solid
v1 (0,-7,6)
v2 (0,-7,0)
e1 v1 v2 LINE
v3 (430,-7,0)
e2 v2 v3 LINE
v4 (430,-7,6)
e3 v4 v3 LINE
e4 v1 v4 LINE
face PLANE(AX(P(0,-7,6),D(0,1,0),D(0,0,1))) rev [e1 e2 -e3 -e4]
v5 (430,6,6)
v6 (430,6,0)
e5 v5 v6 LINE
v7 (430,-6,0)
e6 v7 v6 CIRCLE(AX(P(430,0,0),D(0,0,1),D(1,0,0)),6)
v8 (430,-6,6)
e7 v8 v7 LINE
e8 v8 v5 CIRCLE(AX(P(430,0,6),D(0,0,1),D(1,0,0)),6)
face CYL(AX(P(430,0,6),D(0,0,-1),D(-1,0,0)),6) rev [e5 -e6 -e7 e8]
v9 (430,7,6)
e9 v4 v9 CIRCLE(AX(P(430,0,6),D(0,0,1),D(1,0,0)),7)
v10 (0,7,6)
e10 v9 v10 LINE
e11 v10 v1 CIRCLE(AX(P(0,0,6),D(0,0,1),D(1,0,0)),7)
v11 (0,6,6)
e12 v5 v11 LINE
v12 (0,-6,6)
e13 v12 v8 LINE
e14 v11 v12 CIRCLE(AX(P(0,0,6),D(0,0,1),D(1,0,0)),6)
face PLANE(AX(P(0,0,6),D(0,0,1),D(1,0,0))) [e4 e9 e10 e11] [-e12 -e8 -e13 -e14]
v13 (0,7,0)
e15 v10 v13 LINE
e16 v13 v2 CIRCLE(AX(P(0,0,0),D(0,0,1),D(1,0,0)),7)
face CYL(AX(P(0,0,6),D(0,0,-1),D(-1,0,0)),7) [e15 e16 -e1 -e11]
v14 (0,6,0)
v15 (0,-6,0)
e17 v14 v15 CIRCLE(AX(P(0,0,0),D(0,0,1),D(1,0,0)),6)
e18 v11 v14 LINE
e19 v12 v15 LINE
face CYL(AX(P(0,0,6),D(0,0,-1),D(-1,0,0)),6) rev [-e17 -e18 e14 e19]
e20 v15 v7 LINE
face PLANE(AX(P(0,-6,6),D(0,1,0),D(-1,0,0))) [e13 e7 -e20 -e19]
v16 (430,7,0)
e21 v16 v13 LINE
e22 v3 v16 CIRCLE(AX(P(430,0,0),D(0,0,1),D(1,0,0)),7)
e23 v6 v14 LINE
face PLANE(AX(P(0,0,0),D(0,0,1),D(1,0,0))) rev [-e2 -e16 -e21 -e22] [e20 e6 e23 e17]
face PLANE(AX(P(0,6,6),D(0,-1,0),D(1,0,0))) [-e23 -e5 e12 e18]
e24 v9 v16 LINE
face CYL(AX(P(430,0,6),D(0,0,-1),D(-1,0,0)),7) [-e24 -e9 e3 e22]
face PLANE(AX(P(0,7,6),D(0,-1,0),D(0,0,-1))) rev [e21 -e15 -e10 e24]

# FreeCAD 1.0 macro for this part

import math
import FreeCAD as App
import Part
import Sketcher
from FreeCAD import Vector

doc = App.newDocument("Part")
params = doc.addObject("Spreadsheet::Sheet", "Params")
for row, (alias, value) in enumerate([
    ("sketch1_radius", "7 mm"),
    ("sketch1_radius2", "6 mm"),
    ("sketch1_width", "430 mm"),
    ("pad1_length", "6 mm"),
], start=1):
    params.set(f"A{row}", alias)
    params.set(f"B{row}", "=" + value)
    params.setAlias(f"B{row}", alias)

body = doc.addObject("PartDesign::Body", "Body")

# Sketch on XY plane
sketch1 = body.newObject("Sketcher::SketchObject", "Sketch")
sketch1.AttachmentSupport = (doc.getObject("XY_Plane"), [""])
sketch1.MapMode = "FlatFace"
sketch1.addGeometry([
    Part.LineSegment(Vector(430, 7, 0), Vector(0, 7, 0)),  # 0
    Part.ArcOfCircle(Part.Circle(Vector(0, 0, 0), Vector(0, 0, 1), 7), math.radians(90), math.radians(270)),  # 1
    Part.LineSegment(Vector(0, -7, 0), Vector(430, -7, 0)),  # 2
    Part.ArcOfCircle(Part.Circle(Vector(430, 0, 0), Vector(0, 0, 1), 7), math.radians(-90), math.radians(90)),  # 3
    Part.LineSegment(Vector(0, 6, 0), Vector(430, 6, 0)),  # 4
    Part.ArcOfCircle(Part.Circle(Vector(430, 0, 0), Vector(0, 0, 1), 6), math.radians(-90), math.radians(90)),  # 5
    Part.LineSegment(Vector(430, -6, 0), Vector(0, -6, 0)),  # 6
    Part.ArcOfCircle(Part.Circle(Vector(0, 0, 0), Vector(0, 0, 1), 6), math.radians(90), math.radians(270)),  # 7
], False)
sketch1.addConstraint([
    Sketcher.Constraint("Tangent", 0, 2, 1, 1),
    Sketcher.Constraint("Tangent", 1, 2, 2, 1),
    Sketcher.Constraint("Tangent", 2, 2, 3, 1),
    Sketcher.Constraint("Tangent", 3, 2, 0, 1),
    Sketcher.Constraint("Tangent", 4, 2, 5, 2),
    Sketcher.Constraint("Tangent", 5, 1, 6, 1),
    Sketcher.Constraint("Tangent", 6, 2, 7, 2),
    Sketcher.Constraint("Tangent", 7, 1, 4, 1),
    Sketcher.Constraint("Horizontal", 0),
    Sketcher.Constraint("Horizontal", 2),
    Sketcher.Constraint("Horizontal", 4),
    Sketcher.Constraint("Horizontal", 6),
    Sketcher.Constraint("Coincident", 1, 3, -1, 1),
    Sketcher.Constraint("Coincident", 7, 3, -1, 1),
    Sketcher.Constraint("Vertical", 5, 3, 2, 2),
    Sketcher.Constraint("Radius", 1, 7.0),
    Sketcher.Constraint("Radius", 5, 6.0),
    Sketcher.Constraint("DistanceX", 0, 2, 0, 1, 430.0),
])
sketch1.setExpression("Constraints[15]", "Params.sketch1_radius")
sketch1.setExpression("Constraints[16]", "Params.sketch1_radius2")
sketch1.setExpression("Constraints[17]", "Params.sketch1_width")
pad1 = body.newObject("PartDesign::Pad", "Pad")
pad1.Profile = sketch1
pad1.setExpression("Length", "Params.pad1_length")

doc.recompute()
